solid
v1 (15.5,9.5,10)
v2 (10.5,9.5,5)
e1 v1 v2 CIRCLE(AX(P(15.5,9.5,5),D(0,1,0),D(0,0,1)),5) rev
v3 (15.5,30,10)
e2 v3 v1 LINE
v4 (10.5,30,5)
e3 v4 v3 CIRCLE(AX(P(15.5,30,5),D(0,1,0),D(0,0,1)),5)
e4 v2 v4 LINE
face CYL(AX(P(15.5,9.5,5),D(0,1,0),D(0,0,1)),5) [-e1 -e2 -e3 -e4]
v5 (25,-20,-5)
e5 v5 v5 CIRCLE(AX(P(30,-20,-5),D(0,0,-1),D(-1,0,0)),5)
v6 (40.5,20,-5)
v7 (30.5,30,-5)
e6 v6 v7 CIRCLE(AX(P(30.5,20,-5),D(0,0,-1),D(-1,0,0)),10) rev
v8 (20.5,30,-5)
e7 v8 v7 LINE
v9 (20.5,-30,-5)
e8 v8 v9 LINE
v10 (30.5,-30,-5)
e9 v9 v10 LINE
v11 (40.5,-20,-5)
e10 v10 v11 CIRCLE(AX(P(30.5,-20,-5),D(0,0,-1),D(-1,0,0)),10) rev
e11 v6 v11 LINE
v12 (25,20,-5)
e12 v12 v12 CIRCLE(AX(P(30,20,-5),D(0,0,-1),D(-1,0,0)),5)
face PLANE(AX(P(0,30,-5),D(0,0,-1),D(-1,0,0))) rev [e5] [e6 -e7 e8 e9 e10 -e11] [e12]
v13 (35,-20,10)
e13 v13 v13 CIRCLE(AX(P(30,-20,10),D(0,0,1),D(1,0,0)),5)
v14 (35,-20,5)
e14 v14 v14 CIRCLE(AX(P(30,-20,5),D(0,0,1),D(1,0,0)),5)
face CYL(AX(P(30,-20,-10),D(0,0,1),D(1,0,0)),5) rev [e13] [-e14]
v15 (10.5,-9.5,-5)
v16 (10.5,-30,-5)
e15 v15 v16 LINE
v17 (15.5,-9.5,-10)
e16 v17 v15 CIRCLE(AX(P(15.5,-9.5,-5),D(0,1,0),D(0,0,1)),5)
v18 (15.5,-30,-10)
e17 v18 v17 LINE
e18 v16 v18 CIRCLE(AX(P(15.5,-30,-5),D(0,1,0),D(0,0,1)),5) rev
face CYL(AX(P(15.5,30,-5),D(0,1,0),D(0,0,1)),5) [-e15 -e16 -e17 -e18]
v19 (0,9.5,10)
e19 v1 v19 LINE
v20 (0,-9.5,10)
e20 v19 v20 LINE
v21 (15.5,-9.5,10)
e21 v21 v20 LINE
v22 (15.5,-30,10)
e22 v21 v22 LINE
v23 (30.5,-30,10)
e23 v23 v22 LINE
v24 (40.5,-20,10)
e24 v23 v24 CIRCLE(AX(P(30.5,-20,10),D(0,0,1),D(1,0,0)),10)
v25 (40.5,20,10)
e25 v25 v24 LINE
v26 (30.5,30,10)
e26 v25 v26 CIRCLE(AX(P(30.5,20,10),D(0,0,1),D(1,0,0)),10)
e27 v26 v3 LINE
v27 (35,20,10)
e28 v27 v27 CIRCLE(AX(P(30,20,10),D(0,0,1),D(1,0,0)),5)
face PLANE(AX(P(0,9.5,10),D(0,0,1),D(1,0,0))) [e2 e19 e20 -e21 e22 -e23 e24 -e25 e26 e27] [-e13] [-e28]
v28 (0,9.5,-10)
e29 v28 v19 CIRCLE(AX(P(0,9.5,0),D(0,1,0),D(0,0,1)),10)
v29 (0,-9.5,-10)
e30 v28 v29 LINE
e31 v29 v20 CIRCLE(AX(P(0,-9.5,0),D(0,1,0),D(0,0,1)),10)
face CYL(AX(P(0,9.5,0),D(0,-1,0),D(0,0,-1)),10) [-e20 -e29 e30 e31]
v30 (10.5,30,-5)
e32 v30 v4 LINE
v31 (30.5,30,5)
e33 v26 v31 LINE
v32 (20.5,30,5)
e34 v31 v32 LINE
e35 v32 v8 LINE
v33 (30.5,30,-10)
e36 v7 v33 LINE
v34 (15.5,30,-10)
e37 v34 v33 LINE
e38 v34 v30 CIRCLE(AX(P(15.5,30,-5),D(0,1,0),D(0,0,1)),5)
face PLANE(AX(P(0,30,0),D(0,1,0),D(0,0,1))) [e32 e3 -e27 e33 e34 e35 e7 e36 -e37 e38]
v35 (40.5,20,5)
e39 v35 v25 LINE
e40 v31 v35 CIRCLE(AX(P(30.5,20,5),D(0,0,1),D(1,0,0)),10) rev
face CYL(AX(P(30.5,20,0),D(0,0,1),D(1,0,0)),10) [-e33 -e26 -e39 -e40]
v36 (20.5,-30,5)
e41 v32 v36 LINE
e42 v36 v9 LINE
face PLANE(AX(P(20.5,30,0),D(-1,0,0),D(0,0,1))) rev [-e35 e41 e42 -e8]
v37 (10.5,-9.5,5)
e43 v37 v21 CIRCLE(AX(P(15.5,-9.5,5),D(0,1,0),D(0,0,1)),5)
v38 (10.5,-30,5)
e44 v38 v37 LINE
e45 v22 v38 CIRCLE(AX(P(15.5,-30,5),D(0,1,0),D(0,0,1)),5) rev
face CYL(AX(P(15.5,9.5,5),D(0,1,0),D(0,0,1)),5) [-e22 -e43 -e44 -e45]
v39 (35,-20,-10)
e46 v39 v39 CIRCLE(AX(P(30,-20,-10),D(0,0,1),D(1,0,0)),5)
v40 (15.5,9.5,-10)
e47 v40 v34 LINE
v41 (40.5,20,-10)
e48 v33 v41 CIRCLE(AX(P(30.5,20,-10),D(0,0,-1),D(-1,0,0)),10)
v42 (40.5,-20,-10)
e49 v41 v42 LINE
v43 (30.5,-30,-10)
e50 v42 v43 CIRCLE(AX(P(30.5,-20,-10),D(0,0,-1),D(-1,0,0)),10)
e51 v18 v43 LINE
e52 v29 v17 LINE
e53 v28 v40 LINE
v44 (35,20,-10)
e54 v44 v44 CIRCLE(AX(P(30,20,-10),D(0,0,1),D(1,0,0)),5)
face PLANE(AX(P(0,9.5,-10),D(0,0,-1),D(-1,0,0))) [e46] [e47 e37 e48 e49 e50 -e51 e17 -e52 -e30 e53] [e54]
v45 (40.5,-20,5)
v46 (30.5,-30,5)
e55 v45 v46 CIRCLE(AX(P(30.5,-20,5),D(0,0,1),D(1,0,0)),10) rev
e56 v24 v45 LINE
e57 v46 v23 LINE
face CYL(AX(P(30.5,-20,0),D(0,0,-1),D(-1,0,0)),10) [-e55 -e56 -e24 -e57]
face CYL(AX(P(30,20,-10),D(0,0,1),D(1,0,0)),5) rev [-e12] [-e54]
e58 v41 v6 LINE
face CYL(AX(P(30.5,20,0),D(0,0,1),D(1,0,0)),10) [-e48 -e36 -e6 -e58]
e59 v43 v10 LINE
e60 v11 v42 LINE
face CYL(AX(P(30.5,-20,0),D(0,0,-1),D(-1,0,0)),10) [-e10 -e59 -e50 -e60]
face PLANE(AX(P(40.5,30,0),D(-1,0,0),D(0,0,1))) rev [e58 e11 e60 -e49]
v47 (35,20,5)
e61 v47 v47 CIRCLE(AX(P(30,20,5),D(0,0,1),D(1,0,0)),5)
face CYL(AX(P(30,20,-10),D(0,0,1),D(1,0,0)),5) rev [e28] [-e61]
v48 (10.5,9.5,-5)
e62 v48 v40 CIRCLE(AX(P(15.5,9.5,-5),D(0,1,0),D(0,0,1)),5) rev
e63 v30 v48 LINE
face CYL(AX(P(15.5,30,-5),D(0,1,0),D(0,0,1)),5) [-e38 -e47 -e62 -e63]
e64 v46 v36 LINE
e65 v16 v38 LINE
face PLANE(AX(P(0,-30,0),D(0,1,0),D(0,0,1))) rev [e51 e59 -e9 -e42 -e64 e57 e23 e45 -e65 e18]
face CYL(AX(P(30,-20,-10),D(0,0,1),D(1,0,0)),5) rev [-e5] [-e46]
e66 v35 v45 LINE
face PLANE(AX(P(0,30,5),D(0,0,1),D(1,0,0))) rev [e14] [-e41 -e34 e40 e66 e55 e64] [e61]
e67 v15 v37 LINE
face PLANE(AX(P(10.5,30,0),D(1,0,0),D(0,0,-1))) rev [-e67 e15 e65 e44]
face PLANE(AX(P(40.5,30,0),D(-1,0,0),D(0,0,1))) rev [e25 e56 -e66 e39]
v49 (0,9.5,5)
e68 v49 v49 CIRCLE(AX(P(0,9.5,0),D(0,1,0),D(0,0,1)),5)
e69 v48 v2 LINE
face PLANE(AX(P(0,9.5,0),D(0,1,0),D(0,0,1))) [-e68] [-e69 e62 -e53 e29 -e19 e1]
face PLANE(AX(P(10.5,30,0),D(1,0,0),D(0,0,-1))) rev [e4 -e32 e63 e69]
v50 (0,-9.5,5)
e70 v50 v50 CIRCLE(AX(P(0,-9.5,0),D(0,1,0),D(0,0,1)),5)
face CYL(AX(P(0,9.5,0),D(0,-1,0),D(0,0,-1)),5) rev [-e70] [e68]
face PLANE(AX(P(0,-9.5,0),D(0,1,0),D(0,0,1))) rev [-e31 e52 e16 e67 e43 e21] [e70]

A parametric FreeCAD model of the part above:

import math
import FreeCAD as App
import Part
import Sketcher


def edges_at(feature, points):
    """Names of the edges that pass closest to the given points."""
    edges = feature.Shape.Edges
    near = lambda p: min(range(len(edges)), key=lambda i: edges[i].distToShape(Part.Vertex(*p))[0])
    return sorted({f"Edge{near(p) + 1}" for p in points})


def add_polygon(sketch, points):
    """Adds a closed chain of lines whose ends are joined by coincident constraints."""
    first, n = sketch.GeometryCount, len(points)
    for a, b in zip(points, points[1:] + points[:1]):
        sketch.addGeometry(Part.LineSegment(App.Vector(*a, 0), App.Vector(*b, 0)), False)
    for i in range(n):
        sketch.addConstraint(Sketcher.Constraint("Coincident", first + i, 2, first + (i + 1) % n, 1))

doc = App.newDocument("Part")
body = doc.addObject("PartDesign::Body", "Body")

sketch1 = body.newObject("Sketcher::SketchObject", "Sketch")
sketch1.AttachmentSupport = (doc.getObject("XZ_Plane"), [""])
sketch1.MapMode = "FlatFace"
sketch1.addGeometry([
    Part.LineSegment(App.Vector(10.5, -10, 0), App.Vector(0, -10, 0)),
    Part.ArcOfCircle(Part.Circle(App.Vector(0, 0, 0), App.Vector(0, 0, 1), 10), math.radians(90), math.radians(270)),
    Part.LineSegment(App.Vector(0, 10, 0), App.Vector(10.5, 10, 0)),
    Part.LineSegment(App.Vector(10.5, 10, 0), App.Vector(10.5, -10, 0)),
    Part.Circle(App.Vector(0, 0, 0), App.Vector(0, 0, 1), 5),
], False)
sketch1.addConstraint([
    Sketcher.Constraint("Tangent", 0, 2, 1, 2),
    Sketcher.Constraint("Tangent", 1, 1, 2, 1),
    Sketcher.Constraint("Coincident", 2, 2, 3, 1),
    Sketcher.Constraint("Coincident", 3, 2, 0, 1),
    Sketcher.Constraint("Horizontal", 0),
    Sketcher.Constraint("Horizontal", 2),
    Sketcher.Constraint("Vertical", 3),
    Sketcher.Constraint("Coincident", 1, 3, -1, 1),
    Sketcher.Constraint("Coincident", 4, 3, -1, 1),
    Sketcher.Constraint("Diameter", 4, 10.0),
    Sketcher.Constraint("Radius", 1, 10.0),
    Sketcher.Constraint("DistanceX", 0, 2, 0, 1, 10.5),
])
pad1 = body.newObject("PartDesign::Pad", "Pad")
pad1.Profile = sketch1
pad1.Length = 19
pad1.Midplane = True

sketch2 = body.newObject("Sketcher::SketchObject", "Sketch001")
sketch2.AttachmentSupport = (doc.getObject("XZ_Plane"), [""])
sketch2.MapMode = "FlatFace"
add_polygon(sketch2, [(40.5, -10), (10.5, -10), (10.5, 10), (40.5, 10), (40.5, 5), (20.5, 5), (20.5, -5), (40.5, -5)])
sketch2.addConstraint([
    Sketcher.Constraint("Horizontal", 0),
    Sketcher.Constraint("Vertical", 1),
    Sketcher.Constraint("Horizontal", 2),
    Sketcher.Constraint("Vertical", 3),
    Sketcher.Constraint("Horizontal", 4),
    Sketcher.Constraint("Vertical", 5),
    Sketcher.Constraint("Horizontal", 6),
    Sketcher.Constraint("Vertical", 7),
    Sketcher.Constraint("Symmetric", 3, 2, 6, 2, -1),
    Sketcher.Constraint("Equal", 6, 1),
    Sketcher.Constraint("Equal", 3, 7),
    Sketcher.Constraint("DistanceX", 0, 2, 0, 1, 30.0),
    Sketcher.Constraint("DistanceX", 4, 2, 4, 1, 20.0),
    Sketcher.Constraint("DistanceY", 3, 2, 3, 1, 5.0),
    Sketcher.Constraint("DistanceX", -1, 1, 0, 2, 10.5),
])
pad2 = body.newObject("PartDesign::Pad", "Pad001")
pad2.Profile = sketch2
pad2.Length = 60
pad2.Midplane = True

sketch3 = body.newObject("Sketcher::SketchObject", "Sketch002")
sketch3.AttachmentSupport = (doc.getObject("XY_Plane"), [""])
sketch3.MapMode = "FlatFace"
sketch3.AttachmentOffset = App.Placement(App.Vector(0, 0, 10), App.Rotation())
sketch3.addGeometry([
    Part.Circle(App.Vector(30, 20, 0), App.Vector(0, 0, 1), 5),
    Part.Circle(App.Vector(30, -20, 0), App.Vector(0, 0, 1), 5),
], False)
sketch3.addConstraint([
    Sketcher.Constraint("Equal", 0, 1),
    Sketcher.Constraint("Symmetric", 0, 3, 1, 3, -1),
    Sketcher.Constraint("Diameter", 0, 10.0),
    Sketcher.Constraint("DistanceX", -1, 1, 0, 3, 30.0),
    Sketcher.Constraint("DistanceY", -1, 1, 0, 3, 20.0),
])
pocket1 = body.newObject("PartDesign::Pocket", "Pocket")
pocket1.Profile = sketch3
pocket1.Type = "ThroughAll"
doc.recompute()

fillet = body.newObject("PartDesign::Fillet", "Fillet")
fillet.Base = (pocket1, edges_at(pocket1, [
    (40.5, -30, -7.5),
    (40.5, -30, 7.5),
    (40.5, 30, -7.5),
    (40.5, 30, 7.5),
]))
fillet.Radius = 10
doc.recompute()

fillet2 = body.newObject("PartDesign::Fillet", "Fillet001")
fillet2.Base = (fillet, edges_at(fillet, [
    (10.5, 19.75, -10),
    (10.5, -19.75, -10),
    (10.5, 19.75, 10),
    (10.5, -19.75, 10),
]))
fillet2.Radius = 5

doc.recompute()
